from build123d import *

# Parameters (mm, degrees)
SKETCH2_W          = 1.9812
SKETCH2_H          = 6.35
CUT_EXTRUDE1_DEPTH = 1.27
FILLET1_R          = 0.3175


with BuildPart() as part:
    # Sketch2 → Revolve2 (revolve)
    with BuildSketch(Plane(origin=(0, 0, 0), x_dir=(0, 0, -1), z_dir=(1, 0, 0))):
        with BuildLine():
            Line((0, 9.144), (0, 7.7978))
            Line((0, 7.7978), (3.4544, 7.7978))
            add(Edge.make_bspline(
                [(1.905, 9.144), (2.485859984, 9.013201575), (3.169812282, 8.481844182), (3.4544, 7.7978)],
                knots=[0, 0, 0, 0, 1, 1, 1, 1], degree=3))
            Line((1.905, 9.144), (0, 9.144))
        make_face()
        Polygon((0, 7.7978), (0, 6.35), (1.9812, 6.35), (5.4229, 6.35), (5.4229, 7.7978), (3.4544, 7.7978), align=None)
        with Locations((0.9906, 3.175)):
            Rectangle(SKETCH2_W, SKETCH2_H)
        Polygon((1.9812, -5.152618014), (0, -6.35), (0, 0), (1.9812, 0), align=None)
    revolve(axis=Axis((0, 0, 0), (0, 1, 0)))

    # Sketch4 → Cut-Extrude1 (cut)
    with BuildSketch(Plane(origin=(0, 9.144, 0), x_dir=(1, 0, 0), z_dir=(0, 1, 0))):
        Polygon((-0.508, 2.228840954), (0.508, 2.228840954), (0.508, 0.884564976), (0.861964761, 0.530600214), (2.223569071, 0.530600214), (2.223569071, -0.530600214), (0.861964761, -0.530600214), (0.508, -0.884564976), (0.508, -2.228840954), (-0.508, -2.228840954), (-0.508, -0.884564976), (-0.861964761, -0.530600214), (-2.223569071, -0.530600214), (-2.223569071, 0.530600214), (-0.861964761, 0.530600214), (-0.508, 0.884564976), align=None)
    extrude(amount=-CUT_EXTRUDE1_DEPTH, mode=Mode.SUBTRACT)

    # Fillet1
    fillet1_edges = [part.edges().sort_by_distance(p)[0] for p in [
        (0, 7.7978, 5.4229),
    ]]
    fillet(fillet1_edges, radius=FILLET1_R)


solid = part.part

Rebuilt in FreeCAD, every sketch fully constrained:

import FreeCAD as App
import Part
import Sketcher

V = App.Vector
Q = App.Units.Quantity


def edges_at(feature, points):
    """Names of the edges that pass closest to the given points."""
    edges = feature.Shape.Edges
    near = lambda p: min(range(len(edges)), key=lambda i: edges[i].distToShape(Part.Vertex(*p))[0])
    return sorted({f"Edge{near(p) + 1}" for p in points})

doc = App.newDocument("Part")
body = doc.addObject("PartDesign::Body", "Body")

# Sketch on YZ plane
sketch1 = body.newObject("Sketcher::SketchObject", "Sketch")
sketch1.AttachmentSupport = (doc.getObject("YZ_Plane"), [""])
sketch1.MapMode = "FlatFace"
sketch1.addGeometry(Part.LineSegment(V(9.144, 0, 0), V(-6.35, 0, 0)), False)
sketch1.addGeometry(Part.LineSegment(V(-6.35, 0, 0), V(-5.152618, -1.9812, 0)), False)
sketch1.addGeometry(Part.LineSegment(V(-5.152618, -1.9812, 0), V(6.35, -1.9812, 0)), False)
sketch1.addGeometry(Part.LineSegment(V(6.35, -1.9812, 0), V(6.35, -5.4229, 0)), False)
sketch1.addGeometry(Part.LineSegment(V(6.35, -5.4229, 0), V(7.7978, -5.4229, 0)), False)
sketch1.addGeometry(Part.LineSegment(V(7.7978, -5.4229, 0), V(7.7978, -3.4544, 0)), False)
sketch1.addGeometry(Part.BSplineCurve([V(9.144, -1.905, 0), V(9.013202, -2.48586, 0), V(8.481844, -3.169812, 0), V(7.7978, -3.4544, 0)], [4, 4], [0, 1], False, 3, [1, 1, 1, 1], False), False)
sketch1.addGeometry(Part.LineSegment(V(9.144, -1.905, 0), V(9.144, 0, 0)), False)
sketch1.addConstraint(Sketcher.Constraint("Block", 6))
sketch1.addConstraint(Sketcher.Constraint("Coincident", 0, 2, 1, 1))
sketch1.addConstraint(Sketcher.Constraint("Coincident", 1, 2, 2, 1))
sketch1.addConstraint(Sketcher.Constraint("Coincident", 2, 2, 3, 1))
sketch1.addConstraint(Sketcher.Constraint("Coincident", 3, 2, 4, 1))
sketch1.addConstraint(Sketcher.Constraint("Coincident", 4, 2, 5, 1))
sketch1.addConstraint(Sketcher.Constraint("Coincident", 5, 2, 6, 2))
sketch1.addConstraint(Sketcher.Constraint("Coincident", 6, 1, 7, 1))
sketch1.addConstraint(Sketcher.Constraint("Coincident", 7, 2, 0, 1))
sketch1.addConstraint(Sketcher.Constraint("Horizontal", 0))
sketch1.addConstraint(Sketcher.Constraint("Horizontal", 2))
sketch1.addConstraint(Sketcher.Constraint("Vertical", 3))
sketch1.addConstraint(Sketcher.Constraint("Horizontal", 4))
sketch1.addConstraint(Sketcher.Constraint("Vertical", 5))
sketch1.addConstraint(Sketcher.Constraint("Vertical", 7))
sketch1.addConstraint(Sketcher.Constraint("PointOnObject", 0, 2, -1))
sketch1.addConstraint(Sketcher.Constraint("DistanceX", 0, 2, 0, 1, Q("0.61 in")))
sketch1.addConstraint(Sketcher.Constraint("DistanceX", 0, 2, 2, 2, Q("0.5 in")))
sketch1.addConstraint(Sketcher.Constraint("DistanceY", 3, 2, 3, 1, Q("0.1355 in")))
sketch1.addConstraint(Sketcher.Constraint("DistanceY", 5, 1, 5, 2, Q("0.0775 in")))
sketch1.addConstraint(Sketcher.Constraint("DistanceX", 2, 1, 2, 2, Q("11.502618 mm")))
revolution = body.newObject("PartDesign::Revolution", "Revolution")
revolution.Profile = sketch1
revolution.ReferenceAxis = (sketch1, ["H_Axis"])
revolution.Angle = 360

# Sketch on XZ plane
sketch2 = body.newObject("Sketcher::SketchObject", "Sketch001")
sketch2.AttachmentSupport = (doc.getObject("XZ_Plane"), [""])
sketch2.MapMode = "FlatFace"
sketch2.AttachmentOffset = App.Placement(V(0, 0, -0.36 * 25.4), App.Rotation())
sketch2.addGeometry(Part.LineSegment(V(0.5, -2.2, 0), V(-0.5, -2.2, 0)), False)
sketch2.addGeometry(Part.LineSegment(V(-0.5, -2.2, 0), V(-0.5, -0.9, 0)), False)
sketch2.addGeometry(Part.LineSegment(V(-0.5, -0.9, 0), V(-0.9, -0.5, 0)), False)
sketch2.addGeometry(Part.LineSegment(V(-0.9, -0.5, 0), V(-2.2, -0.5, 0)), False)
sketch2.addGeometry(Part.LineSegment(V(-2.2, -0.5, 0), V(-2.2, 0.5, 0)), False)
sketch2.addGeometry(Part.LineSegment(V(-2.2, 0.5, 0), V(-0.9, 0.5, 0)), False)
sketch2.addGeometry(Part.LineSegment(V(-0.9, 0.5, 0), V(-0.5, 0.9, 0)), False)
sketch2.addGeometry(Part.LineSegment(V(-0.5, 0.9, 0), V(-0.5, 2.2, 0)), False)
sketch2.addGeometry(Part.LineSegment(V(-0.5, 2.2, 0), V(0.5, 2.2, 0)), False)
sketch2.addGeometry(Part.LineSegment(V(0.5, 2.2, 0), V(0.5, 0.9, 0)), False)
sketch2.addGeometry(Part.LineSegment(V(0.5, 0.9, 0), V(0.9, 0.5, 0)), False)
sketch2.addGeometry(Part.LineSegment(V(0.9, 0.5, 0), V(2.2, 0.5, 0)), False)
sketch2.addGeometry(Part.LineSegment(V(2.2, 0.5, 0), V(2.2, -0.5, 0)), False)
sketch2.addGeometry(Part.LineSegment(V(2.2, -0.5, 0), V(0.9, -0.5, 0)), False)
sketch2.addGeometry(Part.LineSegment(V(0.9, -0.5, 0), V(0.5, -0.9, 0)), False)
sketch2.addGeometry(Part.LineSegment(V(0.5, -0.9, 0), V(0.5, -2.2, 0)), False)
sketch2.addConstraint(Sketcher.Constraint("Coincident", 0, 2, 1, 1))
sketch2.addConstraint(Sketcher.Constraint("Coincident", 1, 2, 2, 1))
sketch2.addConstraint(Sketcher.Constraint("Coincident", 2, 2, 3, 1))
sketch2.addConstraint(Sketcher.Constraint("Coincident", 3, 2, 4, 1))
sketch2.addConstraint(Sketcher.Constraint("Coincident", 4, 2, 5, 1))
sketch2.addConstraint(Sketcher.Constraint("Coincident", 5, 2, 6, 1))
sketch2.addConstraint(Sketcher.Constraint("Coincident", 6, 2, 7, 1))
sketch2.addConstraint(Sketcher.Constraint("Coincident", 7, 2, 8, 1))
sketch2.addConstraint(Sketcher.Constraint("Coincident", 8, 2, 9, 1))
sketch2.addConstraint(Sketcher.Constraint("Coincident", 9, 2, 10, 1))
sketch2.addConstraint(Sketcher.Constraint("Coincident", 10, 2, 11, 1))
sketch2.addConstraint(Sketcher.Constraint("Coincident", 11, 2, 12, 1))
sketch2.addConstraint(Sketcher.Constraint("Coincident", 12, 2, 13, 1))
sketch2.addConstraint(Sketcher.Constraint("Coincident", 13, 2, 14, 1))
sketch2.addConstraint(Sketcher.Constraint("Coincident", 14, 2, 15, 1))
sketch2.addConstraint(Sketcher.Constraint("Coincident", 15, 2, 0, 1))
sketch2.addConstraint(Sketcher.Constraint("Horizontal", 0))
sketch2.addConstraint(Sketcher.Constraint("Vertical", 1))
sketch2.addConstraint(Sketcher.Constraint("Horizontal", 3))
sketch2.addConstraint(Sketcher.Constraint("Vertical", 4))
sketch2.addConstraint(Sketcher.Constraint("Horizontal", 5))
sketch2.addConstraint(Sketcher.Constraint("Vertical", 7))
sketch2.addConstraint(Sketcher.Constraint("Horizontal", 8))
sketch2.addConstraint(Sketcher.Constraint("Vertical", 9))
sketch2.addConstraint(Sketcher.Constraint("Horizontal", 11))
sketch2.addConstraint(Sketcher.Constraint("Vertical", 12))
sketch2.addConstraint(Sketcher.Constraint("Horizontal", 13))
sketch2.addConstraint(Sketcher.Constraint("Vertical", 15))
sketch2.addConstraint(Sketcher.Constraint("Symmetric", 0, 2, 8, 2, -1, 1))
sketch2.addConstraint(Sketcher.Constraint("Symmetric", 2, 2, 10, 2, -1, 1))
sketch2.addConstraint(Sketcher.Constraint("Symmetric", 4, 2, 12, 2, -1, 1))
sketch2.addConstraint(Sketcher.Constraint("Symmetric", 6, 2, 14, 2, -1, 1))
sketch2.addConstraint(Sketcher.Constraint("Symmetric", 6, 2, 9, 2, -2))
sketch2.addConstraint(Sketcher.Constraint("Symmetric", 5, 2, 10, 2, -2))
sketch2.addConstraint(Sketcher.Constraint("Perpendicular", 2, 6))
sketch2.addConstraint(Sketcher.Constraint("Perpendicular", 6, 10))
sketch2.addConstraint(Sketcher.Constraint("Perpendicular", 10, 14))
sketch2.addConstraint(Sketcher.Constraint("DistanceX", 0, 2, 0, 1, Q("0.04 in")))
sketch2.addConstraint(Sketcher.Constraint("DistanceY", 4, 1, 4, 2, Q("1.0612 mm")))
sketch2.addConstraint(Sketcher.Constraint("Distance", 2, Q("0.500582 mm")))
sketch2.addConstraint(Sketcher.Constraint("DistanceX", 3, 2, 3, 1, Q("1.361604 mm")))
sketch2.addConstraint(Sketcher.Constraint("DistanceY", 1, 1, 1, 2, Q("1.344276 mm")))
pocket1 = body.newObject("PartDesign::Pocket", "Pocket")
pocket1.Profile = sketch2
pocket1.Length = Q("0.05 in")
pocket1.Reversed = True
doc.recompute()

fillet = body.newObject("PartDesign::Fillet", "Fillet")
fillet.Base = (pocket1, edges_at(pocket1, [(0, 7.798, 5.423)]))
fillet.Radius = Q("0.0125 in")

doc.recompute()
